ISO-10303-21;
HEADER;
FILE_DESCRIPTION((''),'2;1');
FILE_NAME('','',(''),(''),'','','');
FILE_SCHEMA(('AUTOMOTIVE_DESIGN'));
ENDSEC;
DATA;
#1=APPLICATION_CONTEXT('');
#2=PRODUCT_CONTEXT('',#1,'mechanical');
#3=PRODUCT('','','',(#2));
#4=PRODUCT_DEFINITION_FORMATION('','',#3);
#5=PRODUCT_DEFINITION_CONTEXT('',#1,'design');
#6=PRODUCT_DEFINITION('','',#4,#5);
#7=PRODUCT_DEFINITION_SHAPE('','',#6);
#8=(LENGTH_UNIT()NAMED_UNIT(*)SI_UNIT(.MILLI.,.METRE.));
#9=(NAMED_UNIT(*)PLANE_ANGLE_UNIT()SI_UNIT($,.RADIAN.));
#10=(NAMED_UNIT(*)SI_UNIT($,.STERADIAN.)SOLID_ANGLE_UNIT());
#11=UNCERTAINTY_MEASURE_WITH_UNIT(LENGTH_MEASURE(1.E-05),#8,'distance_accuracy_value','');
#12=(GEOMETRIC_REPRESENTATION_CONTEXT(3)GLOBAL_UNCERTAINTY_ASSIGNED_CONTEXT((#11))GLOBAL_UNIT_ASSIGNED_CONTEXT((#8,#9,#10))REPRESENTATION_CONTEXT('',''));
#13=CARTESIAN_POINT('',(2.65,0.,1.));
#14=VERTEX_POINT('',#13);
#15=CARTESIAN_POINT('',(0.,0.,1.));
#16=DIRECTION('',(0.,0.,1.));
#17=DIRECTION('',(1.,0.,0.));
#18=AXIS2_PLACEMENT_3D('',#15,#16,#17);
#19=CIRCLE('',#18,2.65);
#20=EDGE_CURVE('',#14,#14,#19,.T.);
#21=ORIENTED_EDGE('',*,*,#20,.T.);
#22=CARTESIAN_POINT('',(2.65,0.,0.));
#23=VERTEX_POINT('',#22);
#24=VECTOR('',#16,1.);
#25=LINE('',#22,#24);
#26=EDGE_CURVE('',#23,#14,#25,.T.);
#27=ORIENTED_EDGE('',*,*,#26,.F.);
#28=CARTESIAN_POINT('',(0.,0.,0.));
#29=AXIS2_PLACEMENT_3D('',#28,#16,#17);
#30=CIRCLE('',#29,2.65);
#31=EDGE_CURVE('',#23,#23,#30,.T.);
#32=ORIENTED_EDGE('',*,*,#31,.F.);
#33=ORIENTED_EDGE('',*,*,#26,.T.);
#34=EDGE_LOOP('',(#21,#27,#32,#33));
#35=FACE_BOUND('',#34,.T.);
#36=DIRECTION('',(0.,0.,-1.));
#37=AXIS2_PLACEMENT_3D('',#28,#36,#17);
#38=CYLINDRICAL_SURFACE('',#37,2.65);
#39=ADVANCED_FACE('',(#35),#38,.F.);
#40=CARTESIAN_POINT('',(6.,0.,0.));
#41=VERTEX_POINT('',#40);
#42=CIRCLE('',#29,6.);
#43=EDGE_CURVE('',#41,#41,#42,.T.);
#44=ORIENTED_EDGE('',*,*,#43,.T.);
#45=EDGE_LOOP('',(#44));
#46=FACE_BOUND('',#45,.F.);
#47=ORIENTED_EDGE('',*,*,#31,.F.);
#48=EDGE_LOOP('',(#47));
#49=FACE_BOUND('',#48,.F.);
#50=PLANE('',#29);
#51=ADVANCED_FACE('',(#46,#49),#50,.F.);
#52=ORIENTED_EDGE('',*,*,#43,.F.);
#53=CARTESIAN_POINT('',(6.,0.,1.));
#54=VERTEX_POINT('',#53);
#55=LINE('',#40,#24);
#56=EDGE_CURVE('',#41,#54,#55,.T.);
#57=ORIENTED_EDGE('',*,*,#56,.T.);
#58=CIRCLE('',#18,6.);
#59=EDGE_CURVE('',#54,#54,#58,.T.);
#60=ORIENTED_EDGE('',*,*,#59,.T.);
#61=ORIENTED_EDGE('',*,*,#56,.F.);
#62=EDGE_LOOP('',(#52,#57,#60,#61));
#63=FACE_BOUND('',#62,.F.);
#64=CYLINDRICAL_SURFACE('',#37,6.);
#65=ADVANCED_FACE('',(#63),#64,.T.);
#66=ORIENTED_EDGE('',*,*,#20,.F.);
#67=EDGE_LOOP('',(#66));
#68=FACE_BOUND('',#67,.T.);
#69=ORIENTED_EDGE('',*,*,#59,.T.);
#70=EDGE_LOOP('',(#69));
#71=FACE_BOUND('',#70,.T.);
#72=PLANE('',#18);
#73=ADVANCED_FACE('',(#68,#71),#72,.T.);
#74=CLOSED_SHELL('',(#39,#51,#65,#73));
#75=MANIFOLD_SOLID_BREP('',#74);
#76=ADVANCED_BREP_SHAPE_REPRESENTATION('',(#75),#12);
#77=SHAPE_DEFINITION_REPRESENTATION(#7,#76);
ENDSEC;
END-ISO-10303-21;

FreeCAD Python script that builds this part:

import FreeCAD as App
import Part
import Sketcher

V = App.Vector

doc = App.newDocument("Part")
body = doc.addObject("PartDesign::Body", "Body")

sketch1 = body.newObject("Sketcher::SketchObject", "Sketch")
sketch1.AttachmentSupport = (doc.getObject("XY_Plane"), [""])
sketch1.MapMode = "FlatFace"
sketch1.addGeometry(Part.Circle(V(0, 0, 0), V(0, 0, 1), 6), False)
sketch1.addGeometry(Part.Circle(V(0, 0, 0), V(0, 0, 1), 2.65), False)
sketch1.addConstraint(Sketcher.Constraint("Coincident", 0, 3, -1, 1))
sketch1.addConstraint(Sketcher.Constraint("Coincident", 1, 3, -1, 1))
sketch1.addConstraint(Sketcher.Constraint("Diameter", 0, 12.0))
sketch1.addConstraint(Sketcher.Constraint("Diameter", 1, 5.3))
pad1 = body.newObject("PartDesign::Pad", "Pad")
pad1.Profile = sketch1
pad1.Length = 1

doc.recompute()
